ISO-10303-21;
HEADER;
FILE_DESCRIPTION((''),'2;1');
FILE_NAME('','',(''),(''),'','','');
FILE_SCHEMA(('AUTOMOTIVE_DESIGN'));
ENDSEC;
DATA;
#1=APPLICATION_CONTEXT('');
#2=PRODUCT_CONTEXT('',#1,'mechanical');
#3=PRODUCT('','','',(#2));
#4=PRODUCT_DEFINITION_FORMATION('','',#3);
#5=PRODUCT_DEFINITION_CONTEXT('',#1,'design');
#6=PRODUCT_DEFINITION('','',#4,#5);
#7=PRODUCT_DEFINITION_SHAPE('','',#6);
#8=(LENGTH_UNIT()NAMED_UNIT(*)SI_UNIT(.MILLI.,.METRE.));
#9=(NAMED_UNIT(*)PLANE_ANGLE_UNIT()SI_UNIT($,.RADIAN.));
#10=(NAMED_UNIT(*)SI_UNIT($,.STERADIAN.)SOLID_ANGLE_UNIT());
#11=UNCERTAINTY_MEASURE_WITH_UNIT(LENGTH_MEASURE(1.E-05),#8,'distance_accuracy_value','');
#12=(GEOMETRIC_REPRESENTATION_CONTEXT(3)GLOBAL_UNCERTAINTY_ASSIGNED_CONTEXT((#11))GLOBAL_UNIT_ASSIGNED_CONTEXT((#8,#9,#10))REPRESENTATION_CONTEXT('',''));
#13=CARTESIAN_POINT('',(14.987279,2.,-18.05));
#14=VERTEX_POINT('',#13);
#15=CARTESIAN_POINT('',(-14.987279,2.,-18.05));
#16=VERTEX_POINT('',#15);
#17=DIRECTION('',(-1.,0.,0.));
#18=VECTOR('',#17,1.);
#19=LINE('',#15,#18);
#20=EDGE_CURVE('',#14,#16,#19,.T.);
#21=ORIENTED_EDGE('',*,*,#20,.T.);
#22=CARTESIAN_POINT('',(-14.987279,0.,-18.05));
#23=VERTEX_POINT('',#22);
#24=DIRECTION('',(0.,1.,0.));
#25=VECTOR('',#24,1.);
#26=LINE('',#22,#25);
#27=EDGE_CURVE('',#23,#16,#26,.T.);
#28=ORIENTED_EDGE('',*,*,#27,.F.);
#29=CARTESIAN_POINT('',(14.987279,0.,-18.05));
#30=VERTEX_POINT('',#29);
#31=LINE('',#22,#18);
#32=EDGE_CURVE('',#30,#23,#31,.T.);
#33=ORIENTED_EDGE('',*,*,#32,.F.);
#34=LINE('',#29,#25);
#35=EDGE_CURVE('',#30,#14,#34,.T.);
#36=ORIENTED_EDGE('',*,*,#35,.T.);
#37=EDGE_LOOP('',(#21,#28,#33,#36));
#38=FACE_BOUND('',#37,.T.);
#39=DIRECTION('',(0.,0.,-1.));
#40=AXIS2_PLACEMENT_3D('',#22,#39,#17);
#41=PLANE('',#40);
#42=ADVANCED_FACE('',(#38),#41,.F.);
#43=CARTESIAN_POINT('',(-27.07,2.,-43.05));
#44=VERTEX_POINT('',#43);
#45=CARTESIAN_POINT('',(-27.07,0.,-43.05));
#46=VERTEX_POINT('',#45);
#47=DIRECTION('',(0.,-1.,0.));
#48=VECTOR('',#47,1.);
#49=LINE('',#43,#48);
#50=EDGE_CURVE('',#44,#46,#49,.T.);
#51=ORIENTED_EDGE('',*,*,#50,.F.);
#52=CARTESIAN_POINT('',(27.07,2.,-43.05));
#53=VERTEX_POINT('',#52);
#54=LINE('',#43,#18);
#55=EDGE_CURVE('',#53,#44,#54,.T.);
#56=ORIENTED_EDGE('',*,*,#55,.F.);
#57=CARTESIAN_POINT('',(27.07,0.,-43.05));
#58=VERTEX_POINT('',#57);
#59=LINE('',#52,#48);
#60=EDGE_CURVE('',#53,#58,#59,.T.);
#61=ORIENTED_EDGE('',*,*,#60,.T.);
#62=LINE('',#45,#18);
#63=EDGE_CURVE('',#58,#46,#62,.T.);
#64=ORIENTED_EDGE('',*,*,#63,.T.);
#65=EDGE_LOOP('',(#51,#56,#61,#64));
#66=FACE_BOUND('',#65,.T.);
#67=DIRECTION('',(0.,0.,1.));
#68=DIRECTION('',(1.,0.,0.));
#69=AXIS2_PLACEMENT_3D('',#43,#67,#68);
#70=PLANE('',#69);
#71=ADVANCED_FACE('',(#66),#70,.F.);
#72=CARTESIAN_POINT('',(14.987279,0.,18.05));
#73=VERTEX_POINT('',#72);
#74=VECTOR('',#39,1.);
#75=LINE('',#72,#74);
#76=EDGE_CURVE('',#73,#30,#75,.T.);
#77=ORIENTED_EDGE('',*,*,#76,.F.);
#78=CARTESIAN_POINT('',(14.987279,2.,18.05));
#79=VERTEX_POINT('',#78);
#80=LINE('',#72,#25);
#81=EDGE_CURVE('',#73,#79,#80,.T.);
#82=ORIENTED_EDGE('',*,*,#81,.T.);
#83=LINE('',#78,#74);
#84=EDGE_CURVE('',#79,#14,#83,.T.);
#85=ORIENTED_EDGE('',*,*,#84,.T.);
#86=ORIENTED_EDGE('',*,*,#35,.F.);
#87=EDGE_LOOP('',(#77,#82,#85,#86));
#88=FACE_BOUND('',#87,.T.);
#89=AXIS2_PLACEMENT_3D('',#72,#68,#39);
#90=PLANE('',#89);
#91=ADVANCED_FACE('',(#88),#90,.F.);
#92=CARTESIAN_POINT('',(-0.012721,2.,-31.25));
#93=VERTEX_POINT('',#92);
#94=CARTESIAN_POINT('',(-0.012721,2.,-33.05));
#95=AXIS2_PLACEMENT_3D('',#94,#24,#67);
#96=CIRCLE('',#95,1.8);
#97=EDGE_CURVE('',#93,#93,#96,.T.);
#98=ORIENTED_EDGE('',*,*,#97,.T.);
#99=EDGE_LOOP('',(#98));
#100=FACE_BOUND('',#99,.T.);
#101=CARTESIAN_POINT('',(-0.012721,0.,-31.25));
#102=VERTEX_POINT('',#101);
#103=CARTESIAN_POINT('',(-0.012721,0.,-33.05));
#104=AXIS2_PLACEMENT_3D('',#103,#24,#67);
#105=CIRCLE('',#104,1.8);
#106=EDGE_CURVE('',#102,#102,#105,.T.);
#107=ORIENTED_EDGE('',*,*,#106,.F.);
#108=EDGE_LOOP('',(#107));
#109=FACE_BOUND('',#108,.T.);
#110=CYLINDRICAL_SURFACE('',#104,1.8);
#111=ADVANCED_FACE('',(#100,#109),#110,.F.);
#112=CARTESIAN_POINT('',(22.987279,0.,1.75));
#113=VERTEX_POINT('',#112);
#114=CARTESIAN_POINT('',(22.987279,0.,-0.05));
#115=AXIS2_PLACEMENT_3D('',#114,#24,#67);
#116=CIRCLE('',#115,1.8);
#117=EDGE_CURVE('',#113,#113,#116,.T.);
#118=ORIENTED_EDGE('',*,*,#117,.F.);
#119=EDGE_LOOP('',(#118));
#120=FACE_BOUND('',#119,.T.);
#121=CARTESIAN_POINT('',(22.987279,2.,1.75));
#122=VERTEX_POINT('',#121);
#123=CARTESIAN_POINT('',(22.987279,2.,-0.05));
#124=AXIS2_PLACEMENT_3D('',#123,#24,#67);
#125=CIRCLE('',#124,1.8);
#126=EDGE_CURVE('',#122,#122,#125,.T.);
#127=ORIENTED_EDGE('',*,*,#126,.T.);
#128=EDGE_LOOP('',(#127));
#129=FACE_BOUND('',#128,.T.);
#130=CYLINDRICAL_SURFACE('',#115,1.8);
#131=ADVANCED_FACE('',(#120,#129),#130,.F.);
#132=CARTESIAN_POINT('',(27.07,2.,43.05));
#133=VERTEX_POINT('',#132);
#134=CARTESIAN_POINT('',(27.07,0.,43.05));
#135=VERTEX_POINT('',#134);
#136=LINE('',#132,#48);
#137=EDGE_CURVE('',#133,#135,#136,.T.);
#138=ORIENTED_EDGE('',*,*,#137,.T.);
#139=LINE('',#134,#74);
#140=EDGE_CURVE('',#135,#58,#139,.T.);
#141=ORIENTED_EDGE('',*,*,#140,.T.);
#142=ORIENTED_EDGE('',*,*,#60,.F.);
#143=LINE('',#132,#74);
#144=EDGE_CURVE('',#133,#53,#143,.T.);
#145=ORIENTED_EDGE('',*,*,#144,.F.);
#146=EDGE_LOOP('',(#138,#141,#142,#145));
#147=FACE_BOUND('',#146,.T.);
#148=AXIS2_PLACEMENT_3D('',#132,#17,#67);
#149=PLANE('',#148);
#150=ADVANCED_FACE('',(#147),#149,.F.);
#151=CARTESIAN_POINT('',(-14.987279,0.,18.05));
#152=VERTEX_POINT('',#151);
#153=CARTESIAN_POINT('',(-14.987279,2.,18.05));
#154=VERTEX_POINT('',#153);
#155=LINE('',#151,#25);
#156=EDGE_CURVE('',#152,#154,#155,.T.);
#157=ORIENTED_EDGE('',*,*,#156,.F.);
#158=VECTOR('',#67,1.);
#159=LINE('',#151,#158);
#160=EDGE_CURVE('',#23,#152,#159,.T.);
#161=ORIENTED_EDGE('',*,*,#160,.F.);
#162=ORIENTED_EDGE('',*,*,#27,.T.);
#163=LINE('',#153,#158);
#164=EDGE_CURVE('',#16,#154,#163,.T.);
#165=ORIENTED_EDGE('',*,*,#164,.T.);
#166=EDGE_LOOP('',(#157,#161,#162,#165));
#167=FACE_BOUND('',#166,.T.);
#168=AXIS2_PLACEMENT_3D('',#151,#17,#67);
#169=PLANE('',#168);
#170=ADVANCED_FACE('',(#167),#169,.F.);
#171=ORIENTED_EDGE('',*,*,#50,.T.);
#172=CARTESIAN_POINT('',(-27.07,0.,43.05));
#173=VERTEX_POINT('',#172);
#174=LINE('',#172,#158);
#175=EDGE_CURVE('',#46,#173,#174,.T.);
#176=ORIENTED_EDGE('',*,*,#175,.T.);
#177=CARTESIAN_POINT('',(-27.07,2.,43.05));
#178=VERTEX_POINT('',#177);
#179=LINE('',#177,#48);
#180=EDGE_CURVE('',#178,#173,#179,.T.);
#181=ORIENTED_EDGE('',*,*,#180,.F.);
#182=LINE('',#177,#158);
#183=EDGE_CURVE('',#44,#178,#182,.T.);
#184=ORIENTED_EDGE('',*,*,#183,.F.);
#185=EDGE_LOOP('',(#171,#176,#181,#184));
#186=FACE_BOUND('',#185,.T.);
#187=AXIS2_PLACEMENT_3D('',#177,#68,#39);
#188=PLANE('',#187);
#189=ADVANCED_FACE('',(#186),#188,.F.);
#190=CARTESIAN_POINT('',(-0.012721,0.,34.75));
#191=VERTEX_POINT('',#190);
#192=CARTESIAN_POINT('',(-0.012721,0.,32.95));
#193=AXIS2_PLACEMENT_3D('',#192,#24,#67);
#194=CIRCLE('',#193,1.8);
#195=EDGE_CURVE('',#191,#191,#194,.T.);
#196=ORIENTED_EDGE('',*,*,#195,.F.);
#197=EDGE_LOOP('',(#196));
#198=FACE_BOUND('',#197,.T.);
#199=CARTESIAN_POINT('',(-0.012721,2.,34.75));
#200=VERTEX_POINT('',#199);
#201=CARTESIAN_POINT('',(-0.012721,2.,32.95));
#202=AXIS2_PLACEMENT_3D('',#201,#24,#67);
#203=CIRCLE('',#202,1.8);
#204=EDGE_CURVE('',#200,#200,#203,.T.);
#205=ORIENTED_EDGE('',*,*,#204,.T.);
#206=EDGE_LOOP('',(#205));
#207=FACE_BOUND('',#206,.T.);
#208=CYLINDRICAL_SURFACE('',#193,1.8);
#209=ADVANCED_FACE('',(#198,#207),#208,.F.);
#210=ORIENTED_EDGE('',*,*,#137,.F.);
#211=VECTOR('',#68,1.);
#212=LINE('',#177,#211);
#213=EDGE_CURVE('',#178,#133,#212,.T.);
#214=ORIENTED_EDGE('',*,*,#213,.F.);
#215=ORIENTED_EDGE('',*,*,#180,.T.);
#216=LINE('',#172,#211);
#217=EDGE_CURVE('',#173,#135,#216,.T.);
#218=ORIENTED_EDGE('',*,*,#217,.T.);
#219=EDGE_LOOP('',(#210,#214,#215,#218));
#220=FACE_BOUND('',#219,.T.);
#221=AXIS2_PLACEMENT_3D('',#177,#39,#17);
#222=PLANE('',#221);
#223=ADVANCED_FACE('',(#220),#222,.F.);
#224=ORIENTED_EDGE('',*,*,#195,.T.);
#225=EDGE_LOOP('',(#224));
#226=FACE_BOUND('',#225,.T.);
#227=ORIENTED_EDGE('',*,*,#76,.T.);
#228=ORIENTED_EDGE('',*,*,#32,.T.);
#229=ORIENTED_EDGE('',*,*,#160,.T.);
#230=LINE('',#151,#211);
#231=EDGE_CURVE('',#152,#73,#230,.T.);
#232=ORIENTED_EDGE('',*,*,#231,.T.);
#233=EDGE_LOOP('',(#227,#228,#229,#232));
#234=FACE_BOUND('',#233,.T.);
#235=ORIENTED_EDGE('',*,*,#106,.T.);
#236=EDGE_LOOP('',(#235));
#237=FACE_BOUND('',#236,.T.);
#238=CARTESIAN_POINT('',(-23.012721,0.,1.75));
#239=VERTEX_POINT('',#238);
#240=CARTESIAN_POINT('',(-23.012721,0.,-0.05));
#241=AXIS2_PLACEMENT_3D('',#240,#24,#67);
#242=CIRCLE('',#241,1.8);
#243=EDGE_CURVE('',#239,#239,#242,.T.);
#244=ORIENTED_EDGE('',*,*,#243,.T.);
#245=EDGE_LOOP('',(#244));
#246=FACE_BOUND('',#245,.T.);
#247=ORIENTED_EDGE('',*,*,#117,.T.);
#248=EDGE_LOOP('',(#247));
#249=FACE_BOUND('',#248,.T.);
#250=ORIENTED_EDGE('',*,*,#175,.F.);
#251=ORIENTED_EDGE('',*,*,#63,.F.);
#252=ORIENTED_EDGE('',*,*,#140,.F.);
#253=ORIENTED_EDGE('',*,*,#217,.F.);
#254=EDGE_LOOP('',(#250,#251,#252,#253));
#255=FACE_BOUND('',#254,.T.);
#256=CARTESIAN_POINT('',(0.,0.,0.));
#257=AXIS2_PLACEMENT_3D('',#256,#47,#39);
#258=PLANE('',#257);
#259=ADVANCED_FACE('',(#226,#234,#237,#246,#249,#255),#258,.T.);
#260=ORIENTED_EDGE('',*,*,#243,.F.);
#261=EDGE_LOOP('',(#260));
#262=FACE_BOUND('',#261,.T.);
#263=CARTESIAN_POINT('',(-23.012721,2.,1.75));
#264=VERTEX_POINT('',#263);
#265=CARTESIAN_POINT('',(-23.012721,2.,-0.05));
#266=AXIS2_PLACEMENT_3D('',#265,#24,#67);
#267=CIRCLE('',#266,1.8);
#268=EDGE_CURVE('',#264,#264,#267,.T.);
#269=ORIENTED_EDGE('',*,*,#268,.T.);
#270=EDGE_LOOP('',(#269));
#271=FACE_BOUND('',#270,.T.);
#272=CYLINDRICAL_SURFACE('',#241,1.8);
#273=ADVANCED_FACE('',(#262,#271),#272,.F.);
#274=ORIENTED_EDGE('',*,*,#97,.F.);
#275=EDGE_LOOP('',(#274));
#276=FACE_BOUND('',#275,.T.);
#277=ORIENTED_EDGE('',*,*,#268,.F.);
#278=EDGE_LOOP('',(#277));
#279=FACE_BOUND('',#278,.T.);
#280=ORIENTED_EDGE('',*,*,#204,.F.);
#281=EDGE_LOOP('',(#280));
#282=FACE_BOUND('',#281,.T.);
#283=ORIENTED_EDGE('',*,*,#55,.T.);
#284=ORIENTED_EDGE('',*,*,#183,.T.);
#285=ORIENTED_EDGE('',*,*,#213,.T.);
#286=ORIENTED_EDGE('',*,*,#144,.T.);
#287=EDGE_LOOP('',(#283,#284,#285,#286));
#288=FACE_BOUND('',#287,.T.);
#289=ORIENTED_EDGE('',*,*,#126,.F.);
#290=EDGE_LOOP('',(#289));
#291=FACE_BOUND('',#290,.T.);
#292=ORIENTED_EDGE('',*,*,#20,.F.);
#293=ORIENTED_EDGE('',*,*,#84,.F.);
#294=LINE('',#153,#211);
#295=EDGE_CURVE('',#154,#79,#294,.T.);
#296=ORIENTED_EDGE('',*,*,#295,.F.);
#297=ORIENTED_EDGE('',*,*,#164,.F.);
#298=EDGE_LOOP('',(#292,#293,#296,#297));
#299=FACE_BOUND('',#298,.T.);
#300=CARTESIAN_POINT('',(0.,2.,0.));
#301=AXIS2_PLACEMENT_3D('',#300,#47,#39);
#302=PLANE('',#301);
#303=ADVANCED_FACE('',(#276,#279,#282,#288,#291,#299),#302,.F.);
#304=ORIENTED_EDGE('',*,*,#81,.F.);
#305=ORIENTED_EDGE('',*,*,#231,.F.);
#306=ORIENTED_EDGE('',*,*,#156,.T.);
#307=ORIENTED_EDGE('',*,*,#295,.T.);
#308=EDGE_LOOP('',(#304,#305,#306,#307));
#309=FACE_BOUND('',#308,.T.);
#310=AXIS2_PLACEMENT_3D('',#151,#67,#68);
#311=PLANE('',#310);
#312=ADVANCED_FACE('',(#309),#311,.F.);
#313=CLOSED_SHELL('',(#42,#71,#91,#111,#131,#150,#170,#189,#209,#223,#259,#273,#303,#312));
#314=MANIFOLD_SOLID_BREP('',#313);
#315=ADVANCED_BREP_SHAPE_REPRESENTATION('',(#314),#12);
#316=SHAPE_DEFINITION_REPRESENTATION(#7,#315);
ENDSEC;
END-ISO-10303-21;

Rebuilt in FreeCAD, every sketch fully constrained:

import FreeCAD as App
import Part
import Sketcher

V = App.Vector
Q = App.Units.Quantity


def add_polygon(sketch, points):
    """Adds a closed chain of lines whose ends are joined by coincident constraints."""
    first, n = sketch.GeometryCount, len(points)
    for a, b in zip(points, points[1:] + points[:1]):
        sketch.addGeometry(Part.LineSegment(App.Vector(*a, 0), App.Vector(*b, 0)), False)
    for i in range(n):
        sketch.addConstraint(Sketcher.Constraint("Coincident", first + i, 2, first + (i + 1) % n, 1))

doc = App.newDocument("Part")
body = doc.addObject("PartDesign::Body", "Body")

# Sketch on XZ plane
sketch1 = body.newObject("Sketcher::SketchObject", "Sketch")
sketch1.AttachmentSupport = (doc.getObject("XZ_Plane"), [""])
sketch1.MapMode = "FlatFace"
add_polygon(sketch1, [(-27.07, -43.05), (-27.07, 43.05), (27.07, 43.05), (27.07, -43.05)])  # lines 0-3
sketch1.addConstraint([
    Sketcher.Constraint("Vertical", 0),
    Sketcher.Constraint("Horizontal", 1),
    Sketcher.Constraint("Vertical", 2),
    Sketcher.Constraint("Horizontal", 3),
    Sketcher.Constraint("Symmetric", 0, 2, 2, 2, -1, 1),
    Sketcher.Constraint("DistanceY", 0, 1, 0, 2, Q("86.1 mm")),
    Sketcher.Constraint("DistanceX", 1, 1, 1, 2, Q("54.14 mm")),
])
pad1 = body.newObject("PartDesign::Pad", "Pad")
pad1.Profile = sketch1
pad1.Length = 2
pad1.Reversed = True

# Sketch on XZ plane
sketch2 = body.newObject("Sketcher::SketchObject", "Sketch001")
sketch2.AttachmentSupport = (doc.getObject("XZ_Plane"), [""])
sketch2.MapMode = "FlatFace"
sketch2.AttachmentOffset = App.Placement(V(0, 0, -2), App.Rotation())
sketch2.addGeometry(Part.Circle(V(22.987279, -0.05, 0), V(0, 0, 1), 1.8), False)  # 0
sketch2.addGeometry(Part.Circle(V(-0.012721, -33.05, 0), V(0, 0, 1), 1.8), False)  # 1
sketch2.addGeometry(Part.Circle(V(-0.012721, 32.95, 0), V(0, 0, 1), 1.8), False)  # 2
sketch2.addGeometry(Part.Circle(V(-23.012721, -0.05, 0), V(0, 0, 1), 1.8), False)  # 3
add_polygon(sketch2, [(-14.987279, -18.05), (-14.987279, 18.05), (14.987279, 18.05), (14.987279, -18.05)])  # lines 4-7
sketch2.addConstraint([
    Sketcher.Constraint("Vertical", 4),
    Sketcher.Constraint("Horizontal", 5),
    Sketcher.Constraint("Vertical", 6),
    Sketcher.Constraint("Horizontal", 7),
    Sketcher.Constraint("Equal", 0, 1),
    Sketcher.Constraint("Equal", 1, 2),
    Sketcher.Constraint("Equal", 2, 3),
    Sketcher.Constraint("Symmetric", 4, 2, 6, 2, -1, 1),
    Sketcher.Constraint("Horizontal", 0, 3, 3, 3),
    Sketcher.Constraint("Vertical", 1, 3, 2, 3),
    Sketcher.Constraint("Diameter", 0, Q("3.6 mm")),
    Sketcher.Constraint("DistanceY", 4, 1, 4, 2, Q("36.1 mm")),
    Sketcher.Constraint("DistanceX", 1, 3, 0, 3, Q("23 mm")),
    Sketcher.Constraint("DistanceY", 1, 3, 0, 3, Q("33 mm")),
    Sketcher.Constraint("DistanceY", 0, 3, 2, 3, Q("33 mm")),
    Sketcher.Constraint("DistanceX", 3, 3, 1, 3, Q("23 mm")),
    Sketcher.Constraint("DistanceX", 5, 2, 0, 3, Q("8 mm")),
    Sketcher.Constraint("DistanceY", 6, 2, 0, 3, Q("18 mm")),
    Sketcher.Constraint("DistanceX", 5, 1, 5, 2, Q("29.974559 mm")),
])
pocket1 = body.newObject("PartDesign::Pocket", "Pocket")
pocket1.Profile = sketch2
pocket1.Length = 2
pocket1.Reversed = True

doc.recompute()
